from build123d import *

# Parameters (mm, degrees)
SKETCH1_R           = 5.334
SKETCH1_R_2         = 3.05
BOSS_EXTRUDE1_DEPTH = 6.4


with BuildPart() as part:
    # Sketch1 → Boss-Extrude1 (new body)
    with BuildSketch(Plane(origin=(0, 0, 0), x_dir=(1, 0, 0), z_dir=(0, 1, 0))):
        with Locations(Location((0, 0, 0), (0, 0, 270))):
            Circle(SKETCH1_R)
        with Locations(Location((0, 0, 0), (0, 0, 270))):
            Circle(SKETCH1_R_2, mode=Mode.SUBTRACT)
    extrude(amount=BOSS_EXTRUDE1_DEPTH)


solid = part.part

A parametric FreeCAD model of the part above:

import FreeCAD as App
import Part
import Sketcher
from FreeCAD import Vector

doc = App.newDocument("Part")
body = doc.addObject("PartDesign::Body", "Body")

# Sketch on XZ plane
sketch1 = doc.addObject("Sketcher::SketchObject", "Sketch")
body.addObject(sketch1)
sketch1.AttachmentSupport = (doc.XZ_Plane, [""])
sketch1.MapMode = "FlatFace"
sketch1.addGeometry([
    Part.Circle(Vector(0, 0, 0), Vector(0, 0, 1), 5.334),
    Part.Circle(Vector(0, 0, 0), Vector(0, 0, 1), 3.05),
], False)
sketch1.addConstraint([
    Sketcher.Constraint("Coincident", 0, 3, -1, 1),
    Sketcher.Constraint("Coincident", 1, 3, -1, 1),
    Sketcher.Constraint("Diameter", 1, 6.1),
    Sketcher.Constraint("Diameter", 0, 10.668),
])
pad1 = doc.addObject("PartDesign::Pad", "Pad")
body.addObject(pad1)
pad1.Profile = sketch1
pad1.Length = 6.4
pad1.Reversed = True

doc.recompute()
